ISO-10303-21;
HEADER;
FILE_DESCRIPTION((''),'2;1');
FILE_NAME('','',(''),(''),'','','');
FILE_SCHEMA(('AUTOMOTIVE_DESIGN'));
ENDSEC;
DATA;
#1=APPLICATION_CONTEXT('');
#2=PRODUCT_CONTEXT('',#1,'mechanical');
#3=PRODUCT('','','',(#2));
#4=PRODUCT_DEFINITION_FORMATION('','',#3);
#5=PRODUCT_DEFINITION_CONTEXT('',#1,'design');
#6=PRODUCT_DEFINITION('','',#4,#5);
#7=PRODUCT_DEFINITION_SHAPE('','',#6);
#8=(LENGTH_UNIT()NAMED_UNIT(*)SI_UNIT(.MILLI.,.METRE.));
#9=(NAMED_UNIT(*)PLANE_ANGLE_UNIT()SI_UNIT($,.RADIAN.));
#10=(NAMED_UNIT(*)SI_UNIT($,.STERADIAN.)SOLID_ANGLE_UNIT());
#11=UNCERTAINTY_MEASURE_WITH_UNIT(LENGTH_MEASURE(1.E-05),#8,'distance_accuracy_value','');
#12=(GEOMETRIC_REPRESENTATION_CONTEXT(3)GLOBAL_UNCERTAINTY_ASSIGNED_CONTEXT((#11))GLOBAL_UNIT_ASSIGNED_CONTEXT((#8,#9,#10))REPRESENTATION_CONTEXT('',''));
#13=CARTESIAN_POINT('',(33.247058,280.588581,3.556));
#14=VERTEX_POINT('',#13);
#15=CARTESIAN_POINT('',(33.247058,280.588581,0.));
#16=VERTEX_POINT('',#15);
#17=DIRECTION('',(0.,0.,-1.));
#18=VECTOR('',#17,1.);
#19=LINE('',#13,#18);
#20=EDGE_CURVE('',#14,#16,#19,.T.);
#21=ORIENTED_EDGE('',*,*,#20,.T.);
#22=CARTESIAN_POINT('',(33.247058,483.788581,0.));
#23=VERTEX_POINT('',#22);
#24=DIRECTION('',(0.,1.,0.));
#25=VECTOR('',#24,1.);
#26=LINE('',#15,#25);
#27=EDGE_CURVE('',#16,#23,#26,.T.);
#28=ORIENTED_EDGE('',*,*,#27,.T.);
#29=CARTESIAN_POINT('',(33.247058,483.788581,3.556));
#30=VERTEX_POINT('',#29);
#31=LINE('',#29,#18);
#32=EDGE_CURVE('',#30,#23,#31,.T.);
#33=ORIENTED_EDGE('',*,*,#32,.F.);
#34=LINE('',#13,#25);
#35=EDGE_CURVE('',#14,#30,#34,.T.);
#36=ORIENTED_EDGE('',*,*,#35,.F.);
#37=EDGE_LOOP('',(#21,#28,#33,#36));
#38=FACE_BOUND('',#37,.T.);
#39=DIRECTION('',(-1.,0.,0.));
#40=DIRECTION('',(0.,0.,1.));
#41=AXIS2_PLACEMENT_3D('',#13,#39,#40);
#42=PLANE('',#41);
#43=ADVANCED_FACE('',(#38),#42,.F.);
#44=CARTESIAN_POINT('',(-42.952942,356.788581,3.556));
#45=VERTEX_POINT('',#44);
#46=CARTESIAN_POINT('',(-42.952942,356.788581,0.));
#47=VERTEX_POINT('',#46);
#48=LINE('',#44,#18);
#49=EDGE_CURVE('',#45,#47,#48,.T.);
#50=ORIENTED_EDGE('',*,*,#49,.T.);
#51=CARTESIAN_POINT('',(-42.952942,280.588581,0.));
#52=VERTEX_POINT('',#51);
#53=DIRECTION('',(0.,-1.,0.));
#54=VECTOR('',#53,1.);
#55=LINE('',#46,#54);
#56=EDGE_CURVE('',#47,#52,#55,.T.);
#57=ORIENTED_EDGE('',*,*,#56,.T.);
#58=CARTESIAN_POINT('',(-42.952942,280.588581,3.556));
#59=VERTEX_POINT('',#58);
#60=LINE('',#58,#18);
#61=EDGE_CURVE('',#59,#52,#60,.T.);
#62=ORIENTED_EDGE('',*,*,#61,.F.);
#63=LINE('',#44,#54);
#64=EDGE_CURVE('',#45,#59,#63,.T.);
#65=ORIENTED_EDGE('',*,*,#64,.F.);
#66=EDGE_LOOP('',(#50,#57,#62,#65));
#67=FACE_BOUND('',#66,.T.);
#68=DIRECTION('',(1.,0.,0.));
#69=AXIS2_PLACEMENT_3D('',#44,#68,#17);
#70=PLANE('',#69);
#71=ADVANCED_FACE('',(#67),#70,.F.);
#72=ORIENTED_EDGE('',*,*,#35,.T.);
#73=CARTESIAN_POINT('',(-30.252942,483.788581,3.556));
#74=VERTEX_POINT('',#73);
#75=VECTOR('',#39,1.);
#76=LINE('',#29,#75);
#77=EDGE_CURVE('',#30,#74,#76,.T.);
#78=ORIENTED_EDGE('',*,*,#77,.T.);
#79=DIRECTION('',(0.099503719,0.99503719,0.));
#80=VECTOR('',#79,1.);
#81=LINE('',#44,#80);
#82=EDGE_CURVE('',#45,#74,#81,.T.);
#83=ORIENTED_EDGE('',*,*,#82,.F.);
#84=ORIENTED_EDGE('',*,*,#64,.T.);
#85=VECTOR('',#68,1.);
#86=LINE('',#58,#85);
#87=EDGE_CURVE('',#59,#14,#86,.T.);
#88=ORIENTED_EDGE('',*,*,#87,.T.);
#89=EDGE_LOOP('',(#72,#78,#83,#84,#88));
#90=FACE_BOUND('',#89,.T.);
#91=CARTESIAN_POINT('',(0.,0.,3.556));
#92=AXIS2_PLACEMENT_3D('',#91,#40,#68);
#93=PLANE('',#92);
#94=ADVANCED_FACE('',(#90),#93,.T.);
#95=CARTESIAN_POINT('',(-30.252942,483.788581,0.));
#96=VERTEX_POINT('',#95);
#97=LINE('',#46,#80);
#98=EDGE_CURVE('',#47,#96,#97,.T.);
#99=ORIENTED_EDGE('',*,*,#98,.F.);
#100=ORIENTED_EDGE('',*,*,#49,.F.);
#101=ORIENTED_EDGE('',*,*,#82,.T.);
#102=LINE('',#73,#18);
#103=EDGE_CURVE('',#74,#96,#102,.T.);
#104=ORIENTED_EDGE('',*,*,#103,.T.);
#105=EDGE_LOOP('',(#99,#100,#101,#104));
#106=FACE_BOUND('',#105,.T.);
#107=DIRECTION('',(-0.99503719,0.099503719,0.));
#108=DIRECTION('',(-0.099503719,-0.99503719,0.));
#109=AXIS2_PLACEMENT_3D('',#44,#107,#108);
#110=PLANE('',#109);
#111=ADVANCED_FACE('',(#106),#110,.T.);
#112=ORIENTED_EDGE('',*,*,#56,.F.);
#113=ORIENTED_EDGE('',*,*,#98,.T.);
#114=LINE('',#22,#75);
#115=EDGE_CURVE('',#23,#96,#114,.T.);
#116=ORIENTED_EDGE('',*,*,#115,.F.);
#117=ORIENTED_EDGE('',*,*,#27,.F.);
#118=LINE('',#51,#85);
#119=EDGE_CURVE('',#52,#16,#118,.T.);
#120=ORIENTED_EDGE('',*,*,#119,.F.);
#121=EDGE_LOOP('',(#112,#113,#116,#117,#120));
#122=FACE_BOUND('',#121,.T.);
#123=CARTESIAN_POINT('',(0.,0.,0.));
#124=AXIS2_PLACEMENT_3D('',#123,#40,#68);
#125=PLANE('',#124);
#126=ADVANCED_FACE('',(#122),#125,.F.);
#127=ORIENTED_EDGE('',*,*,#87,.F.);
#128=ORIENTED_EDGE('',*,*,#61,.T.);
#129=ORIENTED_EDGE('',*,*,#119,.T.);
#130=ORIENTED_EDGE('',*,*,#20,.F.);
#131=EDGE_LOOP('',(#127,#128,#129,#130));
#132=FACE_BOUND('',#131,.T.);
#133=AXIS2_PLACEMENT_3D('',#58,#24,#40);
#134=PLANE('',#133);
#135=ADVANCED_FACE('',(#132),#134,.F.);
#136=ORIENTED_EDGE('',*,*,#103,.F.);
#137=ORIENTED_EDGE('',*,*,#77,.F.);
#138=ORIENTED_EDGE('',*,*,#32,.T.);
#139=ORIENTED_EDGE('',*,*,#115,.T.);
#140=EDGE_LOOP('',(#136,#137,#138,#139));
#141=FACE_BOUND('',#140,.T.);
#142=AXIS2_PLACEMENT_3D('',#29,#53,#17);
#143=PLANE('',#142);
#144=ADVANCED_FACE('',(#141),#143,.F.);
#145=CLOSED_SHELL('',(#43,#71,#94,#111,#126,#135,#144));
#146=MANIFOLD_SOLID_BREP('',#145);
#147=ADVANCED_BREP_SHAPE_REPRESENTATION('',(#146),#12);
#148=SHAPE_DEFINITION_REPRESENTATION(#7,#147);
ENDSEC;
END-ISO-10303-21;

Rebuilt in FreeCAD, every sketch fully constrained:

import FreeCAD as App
import Part
import Sketcher
from FreeCAD import Vector
Q = App.Units.Quantity


def add_polygon(sketch, points):
    """Adds a closed chain of lines whose ends are joined by coincident constraints."""
    first, n = sketch.GeometryCount, len(points)
    for a, b in zip(points, points[1:] + points[:1]):
        sketch.addGeometry(Part.LineSegment(App.Vector(*a, 0), App.Vector(*b, 0)), False)
    for i in range(n):
        sketch.addConstraint(Sketcher.Constraint("Coincident", first + i, 2, first + (i + 1) % n, 1))

doc = App.newDocument("Part")
body = doc.addObject("PartDesign::Body", "Body")

# Sketch on XY plane
sketch1 = doc.addObject("Sketcher::SketchObject", "Sketch")
body.addObject(sketch1)
sketch1.AttachmentSupport = (doc.XY_Plane, [""])
sketch1.MapMode = "FlatFace"
add_polygon(sketch1, [(-43, 357), (-43, 281), (33, 281), (33, 484), (-30, 484)])  # lines 0-4
sketch1.addConstraint(Sketcher.Constraint("Vertical", 0))
sketch1.addConstraint(Sketcher.Constraint("Horizontal", 1))
sketch1.addConstraint(Sketcher.Constraint("Vertical", 2))
sketch1.addConstraint(Sketcher.Constraint("Horizontal", 3))
sketch1.addConstraint(Sketcher.Constraint("Equal", 1, 0))
sketch1.addConstraint(Sketcher.Constraint("DistanceX", 1, 1, 1, 2, Q("3 in")))
sketch1.addConstraint(Sketcher.Constraint("DistanceY", 2, 1, 2, 2, Q("8 in")))
sketch1.addConstraint(Sketcher.Constraint("DistanceX", 3, 2, 3, 1, Q("2.5 in")))
sketch1.addConstraint(Sketcher.Constraint("DistanceY", -1, 1, 0, 2, Q("280.588581 mm")))
sketch1.addConstraint(Sketcher.Constraint("DistanceX", 0, 2, -1, 1, Q("42.952942 mm")))
pad1 = doc.addObject("PartDesign::Pad", "Pad")
body.addObject(pad1)
pad1.Profile = sketch1
pad1.Length = Q("0.14 in")

doc.recompute()
